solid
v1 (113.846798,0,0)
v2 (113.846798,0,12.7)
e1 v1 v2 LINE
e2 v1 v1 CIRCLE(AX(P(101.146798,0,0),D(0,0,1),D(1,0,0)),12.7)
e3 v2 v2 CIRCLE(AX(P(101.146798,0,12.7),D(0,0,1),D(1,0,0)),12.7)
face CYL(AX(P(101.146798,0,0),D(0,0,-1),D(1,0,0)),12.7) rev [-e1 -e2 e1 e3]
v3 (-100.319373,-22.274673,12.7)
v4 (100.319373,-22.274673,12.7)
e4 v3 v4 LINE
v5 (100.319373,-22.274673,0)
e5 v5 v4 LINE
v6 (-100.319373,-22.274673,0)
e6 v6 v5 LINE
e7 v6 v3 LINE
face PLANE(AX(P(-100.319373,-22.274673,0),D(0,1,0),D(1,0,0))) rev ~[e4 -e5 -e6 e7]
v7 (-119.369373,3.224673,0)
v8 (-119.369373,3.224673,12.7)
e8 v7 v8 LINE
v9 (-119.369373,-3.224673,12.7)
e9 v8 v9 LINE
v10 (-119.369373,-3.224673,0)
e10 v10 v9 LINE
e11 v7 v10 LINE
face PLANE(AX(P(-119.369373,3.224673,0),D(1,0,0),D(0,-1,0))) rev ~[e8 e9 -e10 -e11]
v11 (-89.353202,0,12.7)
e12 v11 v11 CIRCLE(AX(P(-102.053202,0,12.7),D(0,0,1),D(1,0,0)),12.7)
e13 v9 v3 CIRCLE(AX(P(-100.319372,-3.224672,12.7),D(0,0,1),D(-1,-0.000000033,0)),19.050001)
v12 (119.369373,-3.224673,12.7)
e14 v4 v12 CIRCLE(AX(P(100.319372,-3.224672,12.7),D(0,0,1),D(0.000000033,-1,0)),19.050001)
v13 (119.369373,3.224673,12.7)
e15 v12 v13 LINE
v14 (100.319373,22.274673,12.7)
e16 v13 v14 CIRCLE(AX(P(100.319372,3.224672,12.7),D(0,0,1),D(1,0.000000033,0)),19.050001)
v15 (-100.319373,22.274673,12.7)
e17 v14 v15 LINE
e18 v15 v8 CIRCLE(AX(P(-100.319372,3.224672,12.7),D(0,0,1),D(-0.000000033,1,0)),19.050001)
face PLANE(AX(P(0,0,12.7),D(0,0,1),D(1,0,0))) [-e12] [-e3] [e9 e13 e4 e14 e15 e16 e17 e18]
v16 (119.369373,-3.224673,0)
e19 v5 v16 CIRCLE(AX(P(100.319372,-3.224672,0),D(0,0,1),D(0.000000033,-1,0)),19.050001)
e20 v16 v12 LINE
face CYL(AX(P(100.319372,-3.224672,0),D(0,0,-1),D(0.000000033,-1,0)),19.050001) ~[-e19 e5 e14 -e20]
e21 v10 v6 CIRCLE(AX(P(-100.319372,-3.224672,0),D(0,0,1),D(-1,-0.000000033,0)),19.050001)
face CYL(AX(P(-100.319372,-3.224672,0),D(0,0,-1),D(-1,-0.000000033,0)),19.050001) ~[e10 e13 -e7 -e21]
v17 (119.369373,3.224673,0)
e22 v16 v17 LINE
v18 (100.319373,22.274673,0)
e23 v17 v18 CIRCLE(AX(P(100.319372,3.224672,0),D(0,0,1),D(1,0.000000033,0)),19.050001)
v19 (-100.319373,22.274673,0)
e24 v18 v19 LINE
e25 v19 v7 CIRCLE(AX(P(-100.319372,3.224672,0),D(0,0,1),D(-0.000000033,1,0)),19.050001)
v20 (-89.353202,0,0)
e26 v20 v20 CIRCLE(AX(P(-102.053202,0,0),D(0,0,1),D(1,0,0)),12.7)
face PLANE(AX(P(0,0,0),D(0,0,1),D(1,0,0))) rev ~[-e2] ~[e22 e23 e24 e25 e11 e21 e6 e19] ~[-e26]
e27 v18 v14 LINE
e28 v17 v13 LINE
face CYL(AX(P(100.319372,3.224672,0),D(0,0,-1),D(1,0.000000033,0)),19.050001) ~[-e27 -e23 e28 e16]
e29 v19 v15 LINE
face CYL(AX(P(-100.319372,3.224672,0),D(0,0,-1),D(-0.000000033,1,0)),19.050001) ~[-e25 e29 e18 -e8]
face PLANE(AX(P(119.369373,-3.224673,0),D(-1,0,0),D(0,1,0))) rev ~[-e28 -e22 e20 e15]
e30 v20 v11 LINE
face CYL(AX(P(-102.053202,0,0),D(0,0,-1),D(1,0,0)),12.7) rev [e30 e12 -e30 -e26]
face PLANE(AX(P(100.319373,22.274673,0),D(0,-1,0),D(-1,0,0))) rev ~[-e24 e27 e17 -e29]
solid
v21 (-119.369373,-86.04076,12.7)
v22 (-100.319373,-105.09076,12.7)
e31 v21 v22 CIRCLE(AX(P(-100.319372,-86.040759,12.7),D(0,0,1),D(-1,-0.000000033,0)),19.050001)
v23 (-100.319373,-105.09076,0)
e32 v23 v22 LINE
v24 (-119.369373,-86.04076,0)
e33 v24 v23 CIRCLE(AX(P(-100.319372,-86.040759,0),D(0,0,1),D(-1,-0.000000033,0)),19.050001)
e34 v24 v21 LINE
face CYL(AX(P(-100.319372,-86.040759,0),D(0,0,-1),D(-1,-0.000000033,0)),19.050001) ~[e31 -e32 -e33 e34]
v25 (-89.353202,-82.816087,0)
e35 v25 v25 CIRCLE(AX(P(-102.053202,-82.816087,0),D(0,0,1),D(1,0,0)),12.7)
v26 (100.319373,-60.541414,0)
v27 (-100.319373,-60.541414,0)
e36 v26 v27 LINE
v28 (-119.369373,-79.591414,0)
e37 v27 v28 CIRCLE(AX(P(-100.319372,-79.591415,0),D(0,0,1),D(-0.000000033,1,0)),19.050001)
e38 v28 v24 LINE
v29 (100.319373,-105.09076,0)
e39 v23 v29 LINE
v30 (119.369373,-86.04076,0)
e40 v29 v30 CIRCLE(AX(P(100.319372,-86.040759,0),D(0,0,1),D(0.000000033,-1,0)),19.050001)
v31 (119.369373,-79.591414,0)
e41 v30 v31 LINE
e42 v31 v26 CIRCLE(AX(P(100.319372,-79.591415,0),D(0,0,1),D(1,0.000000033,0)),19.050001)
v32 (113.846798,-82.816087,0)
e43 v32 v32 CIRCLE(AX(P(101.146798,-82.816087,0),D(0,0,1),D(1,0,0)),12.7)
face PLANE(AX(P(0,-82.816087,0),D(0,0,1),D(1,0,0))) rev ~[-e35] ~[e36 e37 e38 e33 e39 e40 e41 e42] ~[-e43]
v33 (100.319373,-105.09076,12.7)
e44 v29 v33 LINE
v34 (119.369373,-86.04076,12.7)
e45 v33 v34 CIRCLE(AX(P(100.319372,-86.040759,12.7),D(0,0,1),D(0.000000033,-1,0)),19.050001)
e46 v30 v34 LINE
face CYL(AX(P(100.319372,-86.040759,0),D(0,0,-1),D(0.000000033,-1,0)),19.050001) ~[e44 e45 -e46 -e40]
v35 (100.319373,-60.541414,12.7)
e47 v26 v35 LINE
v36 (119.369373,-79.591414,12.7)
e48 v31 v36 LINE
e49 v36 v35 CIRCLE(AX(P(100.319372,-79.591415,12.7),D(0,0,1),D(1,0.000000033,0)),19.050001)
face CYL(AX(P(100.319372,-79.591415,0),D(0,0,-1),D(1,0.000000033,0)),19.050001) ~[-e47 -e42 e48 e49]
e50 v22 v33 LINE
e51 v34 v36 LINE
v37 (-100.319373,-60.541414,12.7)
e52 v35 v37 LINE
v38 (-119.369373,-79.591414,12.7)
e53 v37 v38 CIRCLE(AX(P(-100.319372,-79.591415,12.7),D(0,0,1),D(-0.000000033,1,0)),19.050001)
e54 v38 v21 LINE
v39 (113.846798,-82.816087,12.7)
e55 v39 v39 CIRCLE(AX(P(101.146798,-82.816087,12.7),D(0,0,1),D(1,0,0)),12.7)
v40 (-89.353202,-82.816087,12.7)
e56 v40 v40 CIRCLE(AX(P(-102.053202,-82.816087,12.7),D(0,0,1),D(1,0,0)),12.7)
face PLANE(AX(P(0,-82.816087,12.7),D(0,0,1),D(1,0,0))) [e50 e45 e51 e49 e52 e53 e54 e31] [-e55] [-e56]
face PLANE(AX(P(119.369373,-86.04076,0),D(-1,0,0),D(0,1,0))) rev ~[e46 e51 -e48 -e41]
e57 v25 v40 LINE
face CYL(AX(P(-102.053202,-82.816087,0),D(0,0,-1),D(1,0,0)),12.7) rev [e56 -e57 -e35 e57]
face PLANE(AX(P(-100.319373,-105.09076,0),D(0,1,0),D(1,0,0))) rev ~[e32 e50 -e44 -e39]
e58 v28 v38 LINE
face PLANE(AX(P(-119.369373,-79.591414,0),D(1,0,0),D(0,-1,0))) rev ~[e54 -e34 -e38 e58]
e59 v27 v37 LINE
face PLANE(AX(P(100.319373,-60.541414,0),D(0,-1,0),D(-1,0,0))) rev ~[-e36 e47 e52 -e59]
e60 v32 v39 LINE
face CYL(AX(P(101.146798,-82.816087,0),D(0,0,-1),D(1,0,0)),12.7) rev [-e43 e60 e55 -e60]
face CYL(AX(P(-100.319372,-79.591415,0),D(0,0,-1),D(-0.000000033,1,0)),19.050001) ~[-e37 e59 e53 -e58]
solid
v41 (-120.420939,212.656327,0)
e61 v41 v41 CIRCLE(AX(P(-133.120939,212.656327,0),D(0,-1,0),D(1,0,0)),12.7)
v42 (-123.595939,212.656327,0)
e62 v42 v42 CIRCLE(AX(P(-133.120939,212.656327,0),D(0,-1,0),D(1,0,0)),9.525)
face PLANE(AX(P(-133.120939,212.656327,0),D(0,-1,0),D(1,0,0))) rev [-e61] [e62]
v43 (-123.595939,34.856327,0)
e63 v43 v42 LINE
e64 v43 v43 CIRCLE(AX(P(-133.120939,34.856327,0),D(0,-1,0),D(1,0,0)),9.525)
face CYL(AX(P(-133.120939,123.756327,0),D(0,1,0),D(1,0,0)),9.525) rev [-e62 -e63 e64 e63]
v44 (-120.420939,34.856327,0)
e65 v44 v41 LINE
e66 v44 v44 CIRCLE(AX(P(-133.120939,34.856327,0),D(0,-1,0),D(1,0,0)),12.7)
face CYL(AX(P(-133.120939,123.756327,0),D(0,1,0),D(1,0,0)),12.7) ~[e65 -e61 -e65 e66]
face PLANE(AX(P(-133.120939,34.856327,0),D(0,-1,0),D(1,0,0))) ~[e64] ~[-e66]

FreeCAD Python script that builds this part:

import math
import FreeCAD as App
import Part
import Sketcher
from FreeCAD import Vector
Q = App.Units.Quantity

doc = App.newDocument("Part")
body = doc.addObject("PartDesign::Body", "Body")
body.AllowCompound = True

sketch1 = doc.addObject("Sketcher::SketchObject", "Sketch")
body.addObject(sketch1)
sketch1.AttachmentSupport = (doc.XY_Plane, [""])
sketch1.MapMode = "FlatFace"
sketch1.addGeometry(Part.ArcOfCircle(Part.Circle(Vector(-100.319372, -3.224672, 0), Vector(0, 0, 1), 19.050001), math.radians(-179.999998), math.radians(-90.000002)), False)
sketch1.addGeometry(Part.LineSegment(Vector(-100.319373, -22.274673, 0), Vector(100.319373, -22.274673, 0)), False)
sketch1.addGeometry(Part.ArcOfCircle(Part.Circle(Vector(100.319372, -3.224672, 0), Vector(0, 0, 1), 19.050001), math.radians(-89.999998), math.radians(-0.000002)), False)
sketch1.addGeometry(Part.LineSegment(Vector(119.369373, -3.224673, 0), Vector(119.369373, 3.224673, 0)), False)
sketch1.addGeometry(Part.ArcOfCircle(Part.Circle(Vector(100.319372, 3.224672, 0), Vector(0, 0, 1), 19.050001), math.radians(0.000002), math.radians(89.999998)), False)
sketch1.addGeometry(Part.LineSegment(Vector(100.319373, 22.274673, 0), Vector(-100.319373, 22.274673, 0)), False)
sketch1.addGeometry(Part.ArcOfCircle(Part.Circle(Vector(-100.319372, 3.224672, 0), Vector(0, 0, 1), 19.050001), math.radians(90.000002), math.radians(179.999998)), False)
sketch1.addGeometry(Part.LineSegment(Vector(-119.369373, 3.224673, 0), Vector(-119.369373, -3.224673, 0)), False)
sketch1.addGeometry(Part.Circle(Vector(-102.053202, 0, 0), Vector(0, 0, 1), 12.7), False)
sketch1.addGeometry(Part.Circle(Vector(101.146798, 0, 0), Vector(0, 0, 1), 12.7), False)
sketch1.addGeometry(Part.LineSegment(Vector(119.369373, -86.04076, 0), Vector(119.369373, -79.591414, 0)), False)
sketch1.addGeometry(Part.ArcOfCircle(Part.Circle(Vector(100.319372, -79.591415, 0), Vector(0, 0, 1), 19.050001), math.radians(0.000002), math.radians(89.999998)), False)
sketch1.addGeometry(Part.LineSegment(Vector(100.319373, -60.541414, 0), Vector(-100.319373, -60.541414, 0)), False)
sketch1.addGeometry(Part.ArcOfCircle(Part.Circle(Vector(-100.319372, -79.591415, 0), Vector(0, 0, 1), 19.050001), math.radians(90.000002), math.radians(179.999998)), False)
sketch1.addGeometry(Part.LineSegment(Vector(-119.369373, -79.591414, 0), Vector(-119.369373, -86.04076, 0)), False)
sketch1.addGeometry(Part.ArcOfCircle(Part.Circle(Vector(-100.319372, -86.040759, 0), Vector(0, 0, 1), 19.050001), math.radians(-179.999998), math.radians(-90.000002)), False)
sketch1.addGeometry(Part.LineSegment(Vector(-100.319373, -105.09076, 0), Vector(100.319373, -105.09076, 0)), False)
sketch1.addGeometry(Part.ArcOfCircle(Part.Circle(Vector(100.319372, -86.040759, 0), Vector(0, 0, 1), 19.050001), math.radians(-89.999998), math.radians(-0.000002)), False)
sketch1.addGeometry(Part.Circle(Vector(-102.053202, -82.816087, 0), Vector(0, 0, 1), 12.7), False)
sketch1.addGeometry(Part.Circle(Vector(101.146798, -82.816087, 0), Vector(0, 0, 1), 12.7), False)
sketch1.addConstraint(Sketcher.Constraint("Tangent", 0, 2, 1, 1))
sketch1.addConstraint(Sketcher.Constraint("Tangent", 1, 2, 2, 1))
sketch1.addConstraint(Sketcher.Constraint("Tangent", 2, 2, 3, 1))
sketch1.addConstraint(Sketcher.Constraint("Tangent", 3, 2, 4, 1))
sketch1.addConstraint(Sketcher.Constraint("Tangent", 4, 2, 5, 1))
sketch1.addConstraint(Sketcher.Constraint("Tangent", 5, 2, 6, 1))
sketch1.addConstraint(Sketcher.Constraint("Tangent", 6, 2, 7, 1))
sketch1.addConstraint(Sketcher.Constraint("Tangent", 7, 2, 0, 1))
sketch1.addConstraint(Sketcher.Constraint("Tangent", 10, 2, 11, 1))
sketch1.addConstraint(Sketcher.Constraint("Tangent", 11, 2, 12, 1))
sketch1.addConstraint(Sketcher.Constraint("Tangent", 12, 2, 13, 1))
sketch1.addConstraint(Sketcher.Constraint("Tangent", 13, 2, 14, 1))
sketch1.addConstraint(Sketcher.Constraint("Tangent", 14, 2, 15, 1))
sketch1.addConstraint(Sketcher.Constraint("Tangent", 15, 2, 16, 1))
sketch1.addConstraint(Sketcher.Constraint("Tangent", 16, 2, 17, 1))
sketch1.addConstraint(Sketcher.Constraint("Tangent", 17, 2, 10, 1))
sketch1.addConstraint(Sketcher.Constraint("Horizontal", 1))
sketch1.addConstraint(Sketcher.Constraint("Vertical", 3))
sketch1.addConstraint(Sketcher.Constraint("Horizontal", 5))
sketch1.addConstraint(Sketcher.Constraint("Vertical", 7))
sketch1.addConstraint(Sketcher.Constraint("Vertical", 10))
sketch1.addConstraint(Sketcher.Constraint("Horizontal", 12))
sketch1.addConstraint(Sketcher.Constraint("Vertical", 14))
sketch1.addConstraint(Sketcher.Constraint("Horizontal", 16))
sketch1.addConstraint(Sketcher.Constraint("Equal", 0, 2))
sketch1.addConstraint(Sketcher.Constraint("Equal", 2, 4))
sketch1.addConstraint(Sketcher.Constraint("Equal", 4, 6))
sketch1.addConstraint(Sketcher.Constraint("Equal", 8, 9))
sketch1.addConstraint(Sketcher.Constraint("Equal", 6, 11))
sketch1.addConstraint(Sketcher.Constraint("Equal", 11, 13))
sketch1.addConstraint(Sketcher.Constraint("Equal", 13, 15))
sketch1.addConstraint(Sketcher.Constraint("Equal", 15, 17))
sketch1.addConstraint(Sketcher.Constraint("Equal", 9, 18))
sketch1.addConstraint(Sketcher.Constraint("Equal", 18, 19))
sketch1.addConstraint(Sketcher.Constraint("Symmetric", 0, 3, 4, 3, -1, 1))
sketch1.addConstraint(Sketcher.Constraint("PointOnObject", 8, 3, -1))
sketch1.addConstraint(Sketcher.Constraint("PointOnObject", 9, 3, -1))
sketch1.addConstraint(Sketcher.Constraint("Horizontal", 18, 3, 19, 3))
sketch1.addConstraint(Sketcher.Constraint("Vertical", 4, 3, 11, 3))
sketch1.addConstraint(Sketcher.Constraint("Vertical", 6, 3, 13, 3))
sketch1.addConstraint(Sketcher.Constraint("Vertical", 8, 3, 18, 3))
sketch1.addConstraint(Sketcher.Constraint("Vertical", 9, 3, 19, 3))
sketch1.addConstraint(Sketcher.Constraint("Equal", 7, 10))
sketch1.addConstraint(Sketcher.Constraint("Diameter", 8, Q("1 in")))
sketch1.addConstraint(Sketcher.Constraint("Radius", 0, Q("0.75 in")))
sketch1.addConstraint(Sketcher.Constraint("DistanceX", 8, 3, 9, 3, Q("8 in")))
sketch1.addConstraint(Sketcher.Constraint("DistanceX", 8, 3, -1, 1, 102.053202))
sketch1.addConstraint(Sketcher.Constraint("DistanceX", 1, 1, 1, 2, 200.638746))
sketch1.addConstraint(Sketcher.Constraint("DistanceY", 3, 1, 3, 2, 6.449346))
sketch1.addConstraint(Sketcher.Constraint("DistanceY", 15, 3, -1, 1, 86.040759))
sketch1.addConstraint(Sketcher.Constraint("DistanceY", 18, 3, 6, 3, 86.040759))
pad1 = doc.addObject("PartDesign::Pad", "Pad")
body.addObject(pad1)
pad1.Profile = sketch1
pad1.Length = Q("0.5 in")
body2 = doc.addObject("PartDesign::Body", "Body001")

sketch2 = doc.addObject("Sketcher::SketchObject", "Sketch001")
body2.addObject(sketch2)
sketch2.AttachmentSupport = (doc.getObject("XY_Plane001"), [""])
sketch2.MapMode = "FlatFace"
sketch2.addGeometry(Part.LineSegment(Vector(-123.595939, 212.656327, 0), Vector(-123.595939, 34.856327, 0)), False)
sketch2.addGeometry(Part.LineSegment(Vector(-123.595939, 34.856327, 0), Vector(-120.420939, 34.856327, 0)), False)
sketch2.addGeometry(Part.LineSegment(Vector(-120.420939, 34.856327, 0), Vector(-120.420939, 212.656327, 0)), False)
sketch2.addGeometry(Part.LineSegment(Vector(-120.420939, 212.656327, 0), Vector(-123.595939, 212.656327, 0)), False)
sketch2.addGeometry(Part.LineSegment(Vector(-133.120939, 212.656327, 0), Vector(-133.120939, 34.856327, 0)), True)
sketch2.addConstraint(Sketcher.Constraint("Coincident", 0, 2, 1, 1))
sketch2.addConstraint(Sketcher.Constraint("Coincident", 1, 2, 2, 1))
sketch2.addConstraint(Sketcher.Constraint("Coincident", 2, 2, 3, 1))
sketch2.addConstraint(Sketcher.Constraint("Coincident", 3, 2, 0, 1))
sketch2.addConstraint(Sketcher.Constraint("Vertical", 0))
sketch2.addConstraint(Sketcher.Constraint("Horizontal", 1))
sketch2.addConstraint(Sketcher.Constraint("Vertical", 2))
sketch2.addConstraint(Sketcher.Constraint("Horizontal", 3))
sketch2.addConstraint(Sketcher.Constraint("Vertical", 4))
sketch2.addConstraint(Sketcher.Constraint("Horizontal", 3, 2, 4, 1))
sketch2.addConstraint(Sketcher.Constraint("Horizontal", 1, 2, 4, 2))
sketch2.addConstraint(Sketcher.Constraint("DistanceY", 0, 2, 0, 1, Q("7 in")))
sketch2.addConstraint(Sketcher.Constraint("DistanceX", 4, 1, 2, 2, Q("0.5 in")))
sketch2.addConstraint(Sketcher.Constraint("DistanceX", 1, 1, 1, 2, Q("0.125 in")))
sketch2.addConstraint(Sketcher.Constraint("DistanceX", 0, 2, -1, 1, 123.595939))
sketch2.addConstraint(Sketcher.Constraint("DistanceY", -1, 1, 0, 2, 34.856327))
revolution = doc.addObject("PartDesign::Revolution", "Revolution")
body2.addObject(revolution)
revolution.Profile = sketch2
revolution.ReferenceAxis = (sketch2, ["Axis0"])
revolution.Angle = 360

doc.recompute()
